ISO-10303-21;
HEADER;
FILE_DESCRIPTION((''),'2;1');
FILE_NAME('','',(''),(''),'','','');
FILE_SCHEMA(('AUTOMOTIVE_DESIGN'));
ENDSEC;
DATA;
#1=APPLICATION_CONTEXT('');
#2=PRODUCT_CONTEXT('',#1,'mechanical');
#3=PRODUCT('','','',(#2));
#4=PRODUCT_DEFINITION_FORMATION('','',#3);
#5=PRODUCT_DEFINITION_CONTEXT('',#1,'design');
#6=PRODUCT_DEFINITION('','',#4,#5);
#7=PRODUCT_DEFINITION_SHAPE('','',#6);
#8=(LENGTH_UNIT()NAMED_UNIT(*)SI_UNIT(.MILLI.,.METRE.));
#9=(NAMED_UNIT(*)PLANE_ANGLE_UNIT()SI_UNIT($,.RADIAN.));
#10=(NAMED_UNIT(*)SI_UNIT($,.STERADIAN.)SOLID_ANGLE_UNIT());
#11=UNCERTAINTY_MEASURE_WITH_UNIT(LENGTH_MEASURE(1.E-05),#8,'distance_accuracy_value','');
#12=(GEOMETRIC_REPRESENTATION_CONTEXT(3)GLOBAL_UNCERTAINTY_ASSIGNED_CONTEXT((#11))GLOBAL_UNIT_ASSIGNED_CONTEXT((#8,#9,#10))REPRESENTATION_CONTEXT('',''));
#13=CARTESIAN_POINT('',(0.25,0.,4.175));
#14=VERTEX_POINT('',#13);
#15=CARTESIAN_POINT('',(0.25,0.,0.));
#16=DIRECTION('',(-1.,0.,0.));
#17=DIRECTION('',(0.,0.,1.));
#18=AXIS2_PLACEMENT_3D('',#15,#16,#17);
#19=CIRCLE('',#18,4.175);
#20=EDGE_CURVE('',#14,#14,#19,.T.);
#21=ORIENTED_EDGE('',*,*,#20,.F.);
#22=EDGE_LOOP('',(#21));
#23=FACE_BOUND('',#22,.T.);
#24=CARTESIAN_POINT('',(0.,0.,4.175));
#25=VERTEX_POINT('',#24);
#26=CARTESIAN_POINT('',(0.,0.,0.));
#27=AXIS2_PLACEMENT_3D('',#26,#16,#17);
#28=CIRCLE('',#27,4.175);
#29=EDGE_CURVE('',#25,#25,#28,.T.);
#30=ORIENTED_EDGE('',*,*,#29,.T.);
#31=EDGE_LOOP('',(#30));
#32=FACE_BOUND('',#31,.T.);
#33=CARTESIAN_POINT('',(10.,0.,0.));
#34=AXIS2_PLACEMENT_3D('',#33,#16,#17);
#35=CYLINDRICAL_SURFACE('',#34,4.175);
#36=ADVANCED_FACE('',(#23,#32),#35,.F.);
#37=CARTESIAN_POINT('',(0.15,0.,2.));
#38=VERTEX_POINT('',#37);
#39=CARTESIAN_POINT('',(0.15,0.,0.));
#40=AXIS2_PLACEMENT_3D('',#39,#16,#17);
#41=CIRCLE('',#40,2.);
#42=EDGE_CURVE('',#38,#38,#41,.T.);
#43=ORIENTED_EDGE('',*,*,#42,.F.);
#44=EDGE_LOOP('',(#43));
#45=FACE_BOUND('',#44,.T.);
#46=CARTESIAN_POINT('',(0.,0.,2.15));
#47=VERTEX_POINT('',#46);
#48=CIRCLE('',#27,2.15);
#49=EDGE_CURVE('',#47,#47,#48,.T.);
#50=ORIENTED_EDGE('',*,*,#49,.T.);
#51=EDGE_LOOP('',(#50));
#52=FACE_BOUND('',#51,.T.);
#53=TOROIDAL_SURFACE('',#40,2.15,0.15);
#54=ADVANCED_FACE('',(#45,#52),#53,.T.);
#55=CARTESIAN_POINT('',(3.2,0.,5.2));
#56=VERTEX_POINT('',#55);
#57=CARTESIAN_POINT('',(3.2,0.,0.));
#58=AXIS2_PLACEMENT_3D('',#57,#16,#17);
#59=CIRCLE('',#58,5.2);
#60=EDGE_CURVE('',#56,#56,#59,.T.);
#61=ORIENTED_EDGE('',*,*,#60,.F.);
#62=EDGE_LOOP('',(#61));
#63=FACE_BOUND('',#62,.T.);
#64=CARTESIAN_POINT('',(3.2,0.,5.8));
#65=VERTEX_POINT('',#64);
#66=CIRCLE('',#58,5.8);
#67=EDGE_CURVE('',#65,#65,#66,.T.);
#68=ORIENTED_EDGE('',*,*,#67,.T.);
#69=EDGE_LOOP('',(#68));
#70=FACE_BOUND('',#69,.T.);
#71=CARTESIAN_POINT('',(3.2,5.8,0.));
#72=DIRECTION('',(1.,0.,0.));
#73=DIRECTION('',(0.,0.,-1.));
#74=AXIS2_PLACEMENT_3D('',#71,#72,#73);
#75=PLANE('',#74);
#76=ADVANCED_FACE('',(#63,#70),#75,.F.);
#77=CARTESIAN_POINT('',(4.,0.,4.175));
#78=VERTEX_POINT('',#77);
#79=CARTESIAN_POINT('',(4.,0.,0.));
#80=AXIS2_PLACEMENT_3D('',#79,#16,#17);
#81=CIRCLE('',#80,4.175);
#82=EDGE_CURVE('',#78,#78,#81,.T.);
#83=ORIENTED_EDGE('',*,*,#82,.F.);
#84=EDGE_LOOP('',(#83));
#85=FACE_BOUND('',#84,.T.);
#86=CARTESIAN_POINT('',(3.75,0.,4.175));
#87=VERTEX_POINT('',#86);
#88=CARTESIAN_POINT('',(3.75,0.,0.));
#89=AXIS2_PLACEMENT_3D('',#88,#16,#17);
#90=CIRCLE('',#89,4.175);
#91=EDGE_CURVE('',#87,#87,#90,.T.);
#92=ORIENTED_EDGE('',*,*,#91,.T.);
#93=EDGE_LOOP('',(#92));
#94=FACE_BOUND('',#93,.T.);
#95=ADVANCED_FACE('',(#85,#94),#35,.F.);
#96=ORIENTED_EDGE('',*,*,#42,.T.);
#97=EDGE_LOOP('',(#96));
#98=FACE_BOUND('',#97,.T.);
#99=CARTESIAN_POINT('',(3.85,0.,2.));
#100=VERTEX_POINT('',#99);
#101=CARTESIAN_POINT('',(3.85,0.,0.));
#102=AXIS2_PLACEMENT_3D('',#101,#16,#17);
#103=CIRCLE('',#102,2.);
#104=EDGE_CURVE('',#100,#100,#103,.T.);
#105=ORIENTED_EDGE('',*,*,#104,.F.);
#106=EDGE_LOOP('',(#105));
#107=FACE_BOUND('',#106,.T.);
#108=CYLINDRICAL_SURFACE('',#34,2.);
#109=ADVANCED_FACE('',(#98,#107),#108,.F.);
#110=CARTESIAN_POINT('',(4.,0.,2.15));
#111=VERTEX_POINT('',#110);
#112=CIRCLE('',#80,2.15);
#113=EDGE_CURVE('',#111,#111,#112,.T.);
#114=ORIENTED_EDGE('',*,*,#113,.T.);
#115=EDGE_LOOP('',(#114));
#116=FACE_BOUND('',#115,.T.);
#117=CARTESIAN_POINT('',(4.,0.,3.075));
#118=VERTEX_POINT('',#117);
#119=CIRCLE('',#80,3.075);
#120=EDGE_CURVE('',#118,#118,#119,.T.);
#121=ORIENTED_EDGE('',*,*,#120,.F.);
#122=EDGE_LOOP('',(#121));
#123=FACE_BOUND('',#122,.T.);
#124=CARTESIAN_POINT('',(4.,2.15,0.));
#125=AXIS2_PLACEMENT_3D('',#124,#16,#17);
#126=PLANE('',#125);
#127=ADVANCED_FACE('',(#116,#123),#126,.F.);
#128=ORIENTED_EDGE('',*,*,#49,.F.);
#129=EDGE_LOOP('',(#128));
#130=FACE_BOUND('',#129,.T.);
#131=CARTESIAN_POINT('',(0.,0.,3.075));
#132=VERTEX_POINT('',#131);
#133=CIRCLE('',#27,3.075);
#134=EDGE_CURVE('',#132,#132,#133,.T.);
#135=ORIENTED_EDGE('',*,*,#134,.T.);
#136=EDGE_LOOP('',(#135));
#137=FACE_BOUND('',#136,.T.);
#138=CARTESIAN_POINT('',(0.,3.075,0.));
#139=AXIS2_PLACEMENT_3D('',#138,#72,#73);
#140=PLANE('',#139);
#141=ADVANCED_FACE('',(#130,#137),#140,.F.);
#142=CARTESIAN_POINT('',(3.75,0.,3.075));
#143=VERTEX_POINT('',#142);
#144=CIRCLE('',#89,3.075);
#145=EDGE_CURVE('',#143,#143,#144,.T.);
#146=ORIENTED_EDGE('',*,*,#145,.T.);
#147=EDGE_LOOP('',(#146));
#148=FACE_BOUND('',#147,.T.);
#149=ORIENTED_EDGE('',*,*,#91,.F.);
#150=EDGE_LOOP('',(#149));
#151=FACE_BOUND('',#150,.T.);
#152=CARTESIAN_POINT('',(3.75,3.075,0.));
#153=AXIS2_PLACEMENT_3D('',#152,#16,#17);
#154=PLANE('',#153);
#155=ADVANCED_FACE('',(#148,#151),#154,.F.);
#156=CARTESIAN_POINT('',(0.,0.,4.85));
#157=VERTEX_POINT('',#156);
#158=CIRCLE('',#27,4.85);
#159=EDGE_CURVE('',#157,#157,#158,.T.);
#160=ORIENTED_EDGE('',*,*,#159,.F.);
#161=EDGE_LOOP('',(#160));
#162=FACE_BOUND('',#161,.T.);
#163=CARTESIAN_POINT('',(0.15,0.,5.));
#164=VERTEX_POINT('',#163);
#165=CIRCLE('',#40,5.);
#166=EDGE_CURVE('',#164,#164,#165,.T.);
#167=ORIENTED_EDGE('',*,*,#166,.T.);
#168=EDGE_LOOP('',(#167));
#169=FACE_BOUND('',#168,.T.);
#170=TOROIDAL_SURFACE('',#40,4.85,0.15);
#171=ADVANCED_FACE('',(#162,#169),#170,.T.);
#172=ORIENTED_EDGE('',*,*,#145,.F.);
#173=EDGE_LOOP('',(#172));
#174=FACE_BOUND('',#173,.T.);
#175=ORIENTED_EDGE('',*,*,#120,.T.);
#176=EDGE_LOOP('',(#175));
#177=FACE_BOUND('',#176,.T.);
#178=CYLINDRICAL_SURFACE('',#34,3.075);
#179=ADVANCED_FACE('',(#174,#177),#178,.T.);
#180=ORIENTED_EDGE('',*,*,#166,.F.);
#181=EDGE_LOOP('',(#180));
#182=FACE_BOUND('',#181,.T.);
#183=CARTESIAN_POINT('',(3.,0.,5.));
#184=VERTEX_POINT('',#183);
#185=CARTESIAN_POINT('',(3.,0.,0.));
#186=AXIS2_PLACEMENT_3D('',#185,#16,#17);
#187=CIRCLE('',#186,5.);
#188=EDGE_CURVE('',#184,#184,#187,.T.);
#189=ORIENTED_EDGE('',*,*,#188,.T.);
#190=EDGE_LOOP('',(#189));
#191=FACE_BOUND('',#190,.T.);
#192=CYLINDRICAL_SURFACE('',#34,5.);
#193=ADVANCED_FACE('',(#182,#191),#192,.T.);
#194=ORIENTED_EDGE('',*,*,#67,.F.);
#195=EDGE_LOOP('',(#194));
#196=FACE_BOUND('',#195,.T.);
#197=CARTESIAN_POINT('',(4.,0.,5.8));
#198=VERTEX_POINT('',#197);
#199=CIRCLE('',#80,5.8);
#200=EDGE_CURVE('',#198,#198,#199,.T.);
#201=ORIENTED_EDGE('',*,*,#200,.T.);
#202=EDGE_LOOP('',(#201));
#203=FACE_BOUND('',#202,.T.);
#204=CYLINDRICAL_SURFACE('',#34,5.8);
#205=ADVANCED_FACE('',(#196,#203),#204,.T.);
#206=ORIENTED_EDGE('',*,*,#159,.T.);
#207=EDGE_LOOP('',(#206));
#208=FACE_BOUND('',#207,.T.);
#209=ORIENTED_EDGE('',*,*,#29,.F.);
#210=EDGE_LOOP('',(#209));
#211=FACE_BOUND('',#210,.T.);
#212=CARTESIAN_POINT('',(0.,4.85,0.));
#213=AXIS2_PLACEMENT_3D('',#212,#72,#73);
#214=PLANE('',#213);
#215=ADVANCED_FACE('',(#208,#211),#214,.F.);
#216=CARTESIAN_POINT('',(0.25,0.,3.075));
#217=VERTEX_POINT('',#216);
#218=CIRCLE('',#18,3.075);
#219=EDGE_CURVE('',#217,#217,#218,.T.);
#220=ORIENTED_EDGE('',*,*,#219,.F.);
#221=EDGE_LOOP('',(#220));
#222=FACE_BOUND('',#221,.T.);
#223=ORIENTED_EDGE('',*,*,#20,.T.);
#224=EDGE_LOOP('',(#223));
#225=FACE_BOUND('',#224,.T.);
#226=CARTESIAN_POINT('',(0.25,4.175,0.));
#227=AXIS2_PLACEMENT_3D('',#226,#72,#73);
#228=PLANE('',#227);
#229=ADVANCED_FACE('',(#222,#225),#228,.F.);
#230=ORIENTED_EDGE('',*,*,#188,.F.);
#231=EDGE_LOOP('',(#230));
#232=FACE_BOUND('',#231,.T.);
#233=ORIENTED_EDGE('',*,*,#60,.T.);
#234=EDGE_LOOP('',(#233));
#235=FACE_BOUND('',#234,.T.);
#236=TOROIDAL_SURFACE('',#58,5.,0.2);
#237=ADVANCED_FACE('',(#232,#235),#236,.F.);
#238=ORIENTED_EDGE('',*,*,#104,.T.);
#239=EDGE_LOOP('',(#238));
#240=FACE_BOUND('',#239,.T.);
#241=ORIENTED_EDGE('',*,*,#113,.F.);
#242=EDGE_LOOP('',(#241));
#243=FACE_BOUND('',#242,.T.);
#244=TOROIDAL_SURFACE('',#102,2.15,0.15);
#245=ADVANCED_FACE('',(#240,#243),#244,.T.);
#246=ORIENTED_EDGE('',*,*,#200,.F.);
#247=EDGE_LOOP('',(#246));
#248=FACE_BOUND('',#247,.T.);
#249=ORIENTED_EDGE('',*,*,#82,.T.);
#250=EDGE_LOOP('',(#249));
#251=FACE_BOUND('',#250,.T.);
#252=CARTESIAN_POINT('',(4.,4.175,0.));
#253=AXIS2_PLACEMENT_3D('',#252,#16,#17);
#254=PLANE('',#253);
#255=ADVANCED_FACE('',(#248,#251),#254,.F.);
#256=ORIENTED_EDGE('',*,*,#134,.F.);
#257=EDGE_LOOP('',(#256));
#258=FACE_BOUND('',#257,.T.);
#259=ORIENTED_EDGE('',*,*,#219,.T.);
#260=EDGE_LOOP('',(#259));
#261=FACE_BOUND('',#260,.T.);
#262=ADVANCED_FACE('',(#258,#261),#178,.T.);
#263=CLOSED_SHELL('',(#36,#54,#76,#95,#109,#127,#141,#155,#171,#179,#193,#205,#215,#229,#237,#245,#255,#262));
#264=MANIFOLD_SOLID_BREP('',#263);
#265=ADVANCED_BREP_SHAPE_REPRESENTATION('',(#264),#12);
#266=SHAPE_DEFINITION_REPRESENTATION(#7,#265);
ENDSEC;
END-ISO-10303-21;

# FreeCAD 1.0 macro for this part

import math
import FreeCAD as App
import Part
import Sketcher
from FreeCAD import Vector
Q = App.Units.Quantity

doc = App.newDocument("Part")
params = doc.addObject("Spreadsheet::Sheet", "Params")
for row, (alias, value) in enumerate([
    ("sketch1_radius", "0.2 mm"),
    ("sketch1_radius2", "0.15 mm"),
    ("sketch1_width", "3.7 mm"),
    ("sketch1_width2", "0.8 mm"),
    ("sketch1_height", "1.1 mm"),
    ("revolution_angle", "360 deg"),
], start=1):
    params.set(f"A{row}", alias)
    params.set(f"B{row}", "=" + value)
    params.setAlias(f"B{row}", alias)

body = doc.addObject("PartDesign::Body", "Body")

sketch1 = doc.addObject("Sketcher::SketchObject", "Sketch")
body.addObject(sketch1)
sketch1.AttachmentSupport = (doc.XY_Plane, [""])
sketch1.MapMode = "FlatFace"
sketch1.addGeometry([
    Part.LineSegment(Vector(0, 4.85, 0), Vector(0, 4.17, 0)),
    Part.LineSegment(Vector(0, 4.17, 0), Vector(0.25, 4.17, 0)),
    Part.LineSegment(Vector(0.25, 4.17, 0), Vector(0.25, 3.08, 0)),
    Part.LineSegment(Vector(0.25, 3.08, 0), Vector(0, 3.08, 0)),
    Part.LineSegment(Vector(0, 3.08, 0), Vector(0, 2.15, 0)),
    Part.ArcOfCircle(Part.Circle(Vector(0.15, 2.15, 0), Vector(0, 0, 1), 0.15), math.radians(-180), math.radians(-90)),
    Part.LineSegment(Vector(0.15, 2, 0), Vector(3.85, 2, 0)),
    Part.ArcOfCircle(Part.Circle(Vector(3.85, 2.15, 0), Vector(0, 0, 1), 0.15), math.radians(-90), math.radians(0)),
    Part.LineSegment(Vector(4, 2.15, 0), Vector(4, 3.08, 0)),
    Part.LineSegment(Vector(4, 3.08, 0), Vector(3.75, 3.08, 0)),
    Part.LineSegment(Vector(3.75, 3.08, 0), Vector(3.75, 4.17, 0)),
    Part.LineSegment(Vector(3.75, 4.17, 0), Vector(4, 4.17, 0)),
    Part.LineSegment(Vector(4, 4.17, 0), Vector(4, 5.8, 0)),
    Part.LineSegment(Vector(4, 5.8, 0), Vector(3.2, 5.8, 0)),
    Part.LineSegment(Vector(3.2, 5.8, 0), Vector(3.2, 5.2, 0)),
    Part.ArcOfCircle(Part.Circle(Vector(3.2, 5, 0), Vector(0, 0, 1), 0.2), math.radians(180), math.radians(450)),
    Part.LineSegment(Vector(3, 5, 0), Vector(0.15, 5, 0)),
    Part.ArcOfCircle(Part.Circle(Vector(0.15, 4.85, 0), Vector(0, 0, 1), 0.15), math.radians(90), math.radians(180)),
], False)
sketch1.addConstraint([
    Sketcher.Constraint("Coincident", 0, 2, 1, 1),
    Sketcher.Constraint("Coincident", 1, 2, 2, 1),
    Sketcher.Constraint("Coincident", 2, 2, 3, 1),
    Sketcher.Constraint("Coincident", 3, 2, 4, 1),
    Sketcher.Constraint("Tangent", 4, 2, 5, 1),
    Sketcher.Constraint("Tangent", 5, 2, 6, 1),
    Sketcher.Constraint("Tangent", 6, 2, 7, 1),
    Sketcher.Constraint("Tangent", 7, 2, 8, 1),
    Sketcher.Constraint("Coincident", 8, 2, 9, 1),
    Sketcher.Constraint("Coincident", 9, 2, 10, 1),
    Sketcher.Constraint("Coincident", 10, 2, 11, 1),
    Sketcher.Constraint("Coincident", 11, 2, 12, 1),
    Sketcher.Constraint("Coincident", 12, 2, 13, 1),
    Sketcher.Constraint("Coincident", 13, 2, 14, 1),
    Sketcher.Constraint("Coincident", 14, 2, 15, 2),
    Sketcher.Constraint("Coincident", 15, 1, 16, 1),
    Sketcher.Constraint("Tangent", 16, 2, 17, 1),
    Sketcher.Constraint("Tangent", 17, 2, 0, 1),
    Sketcher.Constraint("Vertical", 0),
    Sketcher.Constraint("Horizontal", 1),
    Sketcher.Constraint("Vertical", 2),
    Sketcher.Constraint("Horizontal", 3),
    Sketcher.Constraint("Vertical", 4),
    Sketcher.Constraint("Horizontal", 6),
    Sketcher.Constraint("Vertical", 8),
    Sketcher.Constraint("Horizontal", 9),
    Sketcher.Constraint("Vertical", 10),
    Sketcher.Constraint("Horizontal", 11),
    Sketcher.Constraint("Vertical", 12),
    Sketcher.Constraint("Horizontal", 13),
    Sketcher.Constraint("Vertical", 14),
    Sketcher.Constraint("Horizontal", 16),
    Sketcher.Constraint("Equal", 5, 7),
    Sketcher.Constraint("Equal", 7, 17),
    Sketcher.Constraint("PointOnObject", 0, 2, -2),
    Sketcher.Constraint("PointOnObject", 3, 2, -2),
    Sketcher.Constraint("Horizontal", 3, 2, 8, 2),
    Sketcher.Constraint("Horizontal", 1, 2, 10, 2),
    Sketcher.Constraint("Vertical", 8, 2, 11, 2),
    Sketcher.Constraint("Vertical", 15, 3, 13, 2),
    Sketcher.Constraint("Equal", 3, 9),
    Sketcher.Constraint("Radius", 15, Q("0.2 mm")),
    Sketcher.Constraint("Radius", 5, Q("0.15 mm")),
    Sketcher.Constraint("DistanceX", 6, 1, 6, 2, Q("3.7 mm")),
    Sketcher.Constraint("DistanceX", 13, 2, 13, 1, Q("0.8 mm")),
    Sketcher.Constraint("DistanceY", 2, 2, 2, 1, Q("1.1 mm")),
    Sketcher.Constraint("DistanceY", 14, 2, 14, 1, Q("0.6 mm")),
    Sketcher.Constraint("DistanceY", -1, 1, 15, 3, Q("5 mm")),
    Sketcher.Constraint("DistanceY", -1, 1, 5, 2, Q("2 mm")),
    Sketcher.Constraint("DistanceY", -1, 1, 15, 1, Q("5 mm")),
    Sketcher.Constraint("DistanceX", 1, 1, 1, 2, Q("0.25 mm")),
    Sketcher.Constraint("DistanceY", 0, 2, 0, 1, Q("0.675 mm")),
])
sketch1.setExpression("Constraints[41]", "Params.sketch1_radius")
sketch1.setExpression("Constraints[42]", "Params.sketch1_radius2")
sketch1.setExpression("Constraints[43]", "Params.sketch1_width")
sketch1.setExpression("Constraints[44]", "Params.sketch1_width2")
sketch1.setExpression("Constraints[45]", "Params.sketch1_height")
revolution = doc.addObject("PartDesign::Revolution", "Revolution")
body.addObject(revolution)
revolution.Profile = sketch1
revolution.ReferenceAxis = (sketch1, ["H_Axis"])
revolution.setExpression("Angle", "Params.revolution_angle")

doc.recompute()
